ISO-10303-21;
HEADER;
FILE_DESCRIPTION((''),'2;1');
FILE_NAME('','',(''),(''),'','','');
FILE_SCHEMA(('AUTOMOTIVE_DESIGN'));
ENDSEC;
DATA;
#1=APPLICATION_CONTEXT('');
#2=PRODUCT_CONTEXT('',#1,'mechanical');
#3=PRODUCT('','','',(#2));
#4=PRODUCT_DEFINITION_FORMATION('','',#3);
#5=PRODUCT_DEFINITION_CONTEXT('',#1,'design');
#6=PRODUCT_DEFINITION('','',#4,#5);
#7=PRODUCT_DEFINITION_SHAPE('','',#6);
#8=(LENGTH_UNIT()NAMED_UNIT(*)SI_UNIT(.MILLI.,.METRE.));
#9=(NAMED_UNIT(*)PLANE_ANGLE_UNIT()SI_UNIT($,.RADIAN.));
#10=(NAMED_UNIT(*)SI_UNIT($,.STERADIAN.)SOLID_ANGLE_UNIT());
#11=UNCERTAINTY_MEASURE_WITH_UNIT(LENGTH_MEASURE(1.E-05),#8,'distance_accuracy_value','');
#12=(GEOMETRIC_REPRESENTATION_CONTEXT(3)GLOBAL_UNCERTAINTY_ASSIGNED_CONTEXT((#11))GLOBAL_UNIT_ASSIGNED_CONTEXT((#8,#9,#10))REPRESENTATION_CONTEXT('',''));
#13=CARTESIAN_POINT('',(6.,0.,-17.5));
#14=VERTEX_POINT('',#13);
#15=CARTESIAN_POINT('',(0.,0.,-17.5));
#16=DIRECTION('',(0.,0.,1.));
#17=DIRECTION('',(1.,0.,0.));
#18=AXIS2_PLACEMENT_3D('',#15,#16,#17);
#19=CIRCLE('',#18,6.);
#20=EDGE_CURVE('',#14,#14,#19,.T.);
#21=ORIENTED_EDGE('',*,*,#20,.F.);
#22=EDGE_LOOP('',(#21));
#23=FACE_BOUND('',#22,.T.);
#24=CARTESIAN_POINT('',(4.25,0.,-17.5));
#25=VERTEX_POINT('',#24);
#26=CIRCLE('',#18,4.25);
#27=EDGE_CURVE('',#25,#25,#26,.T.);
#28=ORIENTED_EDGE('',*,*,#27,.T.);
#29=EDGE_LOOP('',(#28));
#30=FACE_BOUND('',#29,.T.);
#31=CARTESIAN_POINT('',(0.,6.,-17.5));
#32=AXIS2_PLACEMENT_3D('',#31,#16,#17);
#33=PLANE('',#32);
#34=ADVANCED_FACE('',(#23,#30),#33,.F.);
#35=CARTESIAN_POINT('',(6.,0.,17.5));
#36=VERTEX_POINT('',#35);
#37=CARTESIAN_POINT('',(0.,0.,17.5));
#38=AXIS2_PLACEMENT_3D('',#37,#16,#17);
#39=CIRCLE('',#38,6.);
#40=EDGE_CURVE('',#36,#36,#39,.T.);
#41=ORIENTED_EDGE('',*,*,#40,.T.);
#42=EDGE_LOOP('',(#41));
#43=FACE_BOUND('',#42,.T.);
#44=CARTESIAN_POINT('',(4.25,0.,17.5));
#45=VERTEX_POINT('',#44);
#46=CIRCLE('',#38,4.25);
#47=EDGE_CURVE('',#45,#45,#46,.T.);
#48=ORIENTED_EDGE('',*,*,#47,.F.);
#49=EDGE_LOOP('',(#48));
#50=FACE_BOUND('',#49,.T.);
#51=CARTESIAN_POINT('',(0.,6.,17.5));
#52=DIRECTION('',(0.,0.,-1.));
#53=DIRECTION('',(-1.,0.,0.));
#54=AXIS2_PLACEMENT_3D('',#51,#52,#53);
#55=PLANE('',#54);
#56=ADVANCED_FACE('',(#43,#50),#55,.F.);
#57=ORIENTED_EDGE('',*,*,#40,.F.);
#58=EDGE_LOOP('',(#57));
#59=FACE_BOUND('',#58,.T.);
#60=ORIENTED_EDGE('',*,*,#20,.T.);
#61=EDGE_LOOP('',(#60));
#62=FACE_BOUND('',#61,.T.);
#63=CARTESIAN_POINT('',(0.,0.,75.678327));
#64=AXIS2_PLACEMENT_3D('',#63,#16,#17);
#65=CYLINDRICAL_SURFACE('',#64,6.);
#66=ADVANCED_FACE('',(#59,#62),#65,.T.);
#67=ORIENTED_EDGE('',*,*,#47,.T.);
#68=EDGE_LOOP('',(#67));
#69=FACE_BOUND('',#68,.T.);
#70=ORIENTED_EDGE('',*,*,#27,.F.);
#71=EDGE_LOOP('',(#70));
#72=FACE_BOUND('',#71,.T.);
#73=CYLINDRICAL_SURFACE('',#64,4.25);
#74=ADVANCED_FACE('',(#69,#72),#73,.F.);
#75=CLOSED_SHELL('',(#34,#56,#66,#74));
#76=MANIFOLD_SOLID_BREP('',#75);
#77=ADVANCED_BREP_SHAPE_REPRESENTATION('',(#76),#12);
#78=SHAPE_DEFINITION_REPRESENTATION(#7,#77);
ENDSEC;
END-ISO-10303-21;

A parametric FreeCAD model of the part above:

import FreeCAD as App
import Part
import Sketcher
Q = App.Units.Quantity


def add_polygon(sketch, points):
    """Adds a closed chain of lines whose ends are joined by coincident constraints."""
    first, n = sketch.GeometryCount, len(points)
    for a, b in zip(points, points[1:] + points[:1]):
        sketch.addGeometry(Part.LineSegment(App.Vector(*a, 0), App.Vector(*b, 0)), False)
    for i in range(n):
        sketch.addConstraint(Sketcher.Constraint("Coincident", first + i, 2, first + (i + 1) % n, 1))

doc = App.newDocument("Part")
body = doc.addObject("PartDesign::Body", "Body")

# Sketch on YZ plane
sketch1 = body.newObject("Sketcher::SketchObject", "Sketch")
sketch1.AttachmentSupport = (doc.getObject("YZ_Plane"), [""])
sketch1.MapMode = "FlatFace"
add_polygon(sketch1, [(6, 17.5), (4.25, 17.5), (4.25, -17.5), (6, -17.5)])  # lines 0-3
sketch1.addConstraint(Sketcher.Constraint("Horizontal", 0))
sketch1.addConstraint(Sketcher.Constraint("Vertical", 1))
sketch1.addConstraint(Sketcher.Constraint("Horizontal", 2))
sketch1.addConstraint(Sketcher.Constraint("Vertical", 3))
sketch1.addConstraint(Sketcher.Constraint("DistanceY", 1, 2, 1, 1, Q("35 mm")))
sketch1.addConstraint(Sketcher.Constraint("DistanceX", -1, 1, 2, 2, Q("6 mm")))
sketch1.addConstraint(Sketcher.Constraint("DistanceX", 0, 2, 0, 1, Q("1.75 mm")))
sketch1.addConstraint(Sketcher.Constraint("DistanceY", -1, 1, 0, 2, Q("17.5 mm")))
revolution = body.newObject("PartDesign::Revolution", "Revolution")
revolution.Profile = sketch1
revolution.ReferenceAxis = (sketch1, ["V_Axis"])
revolution.Angle = 360

doc.recompute()
